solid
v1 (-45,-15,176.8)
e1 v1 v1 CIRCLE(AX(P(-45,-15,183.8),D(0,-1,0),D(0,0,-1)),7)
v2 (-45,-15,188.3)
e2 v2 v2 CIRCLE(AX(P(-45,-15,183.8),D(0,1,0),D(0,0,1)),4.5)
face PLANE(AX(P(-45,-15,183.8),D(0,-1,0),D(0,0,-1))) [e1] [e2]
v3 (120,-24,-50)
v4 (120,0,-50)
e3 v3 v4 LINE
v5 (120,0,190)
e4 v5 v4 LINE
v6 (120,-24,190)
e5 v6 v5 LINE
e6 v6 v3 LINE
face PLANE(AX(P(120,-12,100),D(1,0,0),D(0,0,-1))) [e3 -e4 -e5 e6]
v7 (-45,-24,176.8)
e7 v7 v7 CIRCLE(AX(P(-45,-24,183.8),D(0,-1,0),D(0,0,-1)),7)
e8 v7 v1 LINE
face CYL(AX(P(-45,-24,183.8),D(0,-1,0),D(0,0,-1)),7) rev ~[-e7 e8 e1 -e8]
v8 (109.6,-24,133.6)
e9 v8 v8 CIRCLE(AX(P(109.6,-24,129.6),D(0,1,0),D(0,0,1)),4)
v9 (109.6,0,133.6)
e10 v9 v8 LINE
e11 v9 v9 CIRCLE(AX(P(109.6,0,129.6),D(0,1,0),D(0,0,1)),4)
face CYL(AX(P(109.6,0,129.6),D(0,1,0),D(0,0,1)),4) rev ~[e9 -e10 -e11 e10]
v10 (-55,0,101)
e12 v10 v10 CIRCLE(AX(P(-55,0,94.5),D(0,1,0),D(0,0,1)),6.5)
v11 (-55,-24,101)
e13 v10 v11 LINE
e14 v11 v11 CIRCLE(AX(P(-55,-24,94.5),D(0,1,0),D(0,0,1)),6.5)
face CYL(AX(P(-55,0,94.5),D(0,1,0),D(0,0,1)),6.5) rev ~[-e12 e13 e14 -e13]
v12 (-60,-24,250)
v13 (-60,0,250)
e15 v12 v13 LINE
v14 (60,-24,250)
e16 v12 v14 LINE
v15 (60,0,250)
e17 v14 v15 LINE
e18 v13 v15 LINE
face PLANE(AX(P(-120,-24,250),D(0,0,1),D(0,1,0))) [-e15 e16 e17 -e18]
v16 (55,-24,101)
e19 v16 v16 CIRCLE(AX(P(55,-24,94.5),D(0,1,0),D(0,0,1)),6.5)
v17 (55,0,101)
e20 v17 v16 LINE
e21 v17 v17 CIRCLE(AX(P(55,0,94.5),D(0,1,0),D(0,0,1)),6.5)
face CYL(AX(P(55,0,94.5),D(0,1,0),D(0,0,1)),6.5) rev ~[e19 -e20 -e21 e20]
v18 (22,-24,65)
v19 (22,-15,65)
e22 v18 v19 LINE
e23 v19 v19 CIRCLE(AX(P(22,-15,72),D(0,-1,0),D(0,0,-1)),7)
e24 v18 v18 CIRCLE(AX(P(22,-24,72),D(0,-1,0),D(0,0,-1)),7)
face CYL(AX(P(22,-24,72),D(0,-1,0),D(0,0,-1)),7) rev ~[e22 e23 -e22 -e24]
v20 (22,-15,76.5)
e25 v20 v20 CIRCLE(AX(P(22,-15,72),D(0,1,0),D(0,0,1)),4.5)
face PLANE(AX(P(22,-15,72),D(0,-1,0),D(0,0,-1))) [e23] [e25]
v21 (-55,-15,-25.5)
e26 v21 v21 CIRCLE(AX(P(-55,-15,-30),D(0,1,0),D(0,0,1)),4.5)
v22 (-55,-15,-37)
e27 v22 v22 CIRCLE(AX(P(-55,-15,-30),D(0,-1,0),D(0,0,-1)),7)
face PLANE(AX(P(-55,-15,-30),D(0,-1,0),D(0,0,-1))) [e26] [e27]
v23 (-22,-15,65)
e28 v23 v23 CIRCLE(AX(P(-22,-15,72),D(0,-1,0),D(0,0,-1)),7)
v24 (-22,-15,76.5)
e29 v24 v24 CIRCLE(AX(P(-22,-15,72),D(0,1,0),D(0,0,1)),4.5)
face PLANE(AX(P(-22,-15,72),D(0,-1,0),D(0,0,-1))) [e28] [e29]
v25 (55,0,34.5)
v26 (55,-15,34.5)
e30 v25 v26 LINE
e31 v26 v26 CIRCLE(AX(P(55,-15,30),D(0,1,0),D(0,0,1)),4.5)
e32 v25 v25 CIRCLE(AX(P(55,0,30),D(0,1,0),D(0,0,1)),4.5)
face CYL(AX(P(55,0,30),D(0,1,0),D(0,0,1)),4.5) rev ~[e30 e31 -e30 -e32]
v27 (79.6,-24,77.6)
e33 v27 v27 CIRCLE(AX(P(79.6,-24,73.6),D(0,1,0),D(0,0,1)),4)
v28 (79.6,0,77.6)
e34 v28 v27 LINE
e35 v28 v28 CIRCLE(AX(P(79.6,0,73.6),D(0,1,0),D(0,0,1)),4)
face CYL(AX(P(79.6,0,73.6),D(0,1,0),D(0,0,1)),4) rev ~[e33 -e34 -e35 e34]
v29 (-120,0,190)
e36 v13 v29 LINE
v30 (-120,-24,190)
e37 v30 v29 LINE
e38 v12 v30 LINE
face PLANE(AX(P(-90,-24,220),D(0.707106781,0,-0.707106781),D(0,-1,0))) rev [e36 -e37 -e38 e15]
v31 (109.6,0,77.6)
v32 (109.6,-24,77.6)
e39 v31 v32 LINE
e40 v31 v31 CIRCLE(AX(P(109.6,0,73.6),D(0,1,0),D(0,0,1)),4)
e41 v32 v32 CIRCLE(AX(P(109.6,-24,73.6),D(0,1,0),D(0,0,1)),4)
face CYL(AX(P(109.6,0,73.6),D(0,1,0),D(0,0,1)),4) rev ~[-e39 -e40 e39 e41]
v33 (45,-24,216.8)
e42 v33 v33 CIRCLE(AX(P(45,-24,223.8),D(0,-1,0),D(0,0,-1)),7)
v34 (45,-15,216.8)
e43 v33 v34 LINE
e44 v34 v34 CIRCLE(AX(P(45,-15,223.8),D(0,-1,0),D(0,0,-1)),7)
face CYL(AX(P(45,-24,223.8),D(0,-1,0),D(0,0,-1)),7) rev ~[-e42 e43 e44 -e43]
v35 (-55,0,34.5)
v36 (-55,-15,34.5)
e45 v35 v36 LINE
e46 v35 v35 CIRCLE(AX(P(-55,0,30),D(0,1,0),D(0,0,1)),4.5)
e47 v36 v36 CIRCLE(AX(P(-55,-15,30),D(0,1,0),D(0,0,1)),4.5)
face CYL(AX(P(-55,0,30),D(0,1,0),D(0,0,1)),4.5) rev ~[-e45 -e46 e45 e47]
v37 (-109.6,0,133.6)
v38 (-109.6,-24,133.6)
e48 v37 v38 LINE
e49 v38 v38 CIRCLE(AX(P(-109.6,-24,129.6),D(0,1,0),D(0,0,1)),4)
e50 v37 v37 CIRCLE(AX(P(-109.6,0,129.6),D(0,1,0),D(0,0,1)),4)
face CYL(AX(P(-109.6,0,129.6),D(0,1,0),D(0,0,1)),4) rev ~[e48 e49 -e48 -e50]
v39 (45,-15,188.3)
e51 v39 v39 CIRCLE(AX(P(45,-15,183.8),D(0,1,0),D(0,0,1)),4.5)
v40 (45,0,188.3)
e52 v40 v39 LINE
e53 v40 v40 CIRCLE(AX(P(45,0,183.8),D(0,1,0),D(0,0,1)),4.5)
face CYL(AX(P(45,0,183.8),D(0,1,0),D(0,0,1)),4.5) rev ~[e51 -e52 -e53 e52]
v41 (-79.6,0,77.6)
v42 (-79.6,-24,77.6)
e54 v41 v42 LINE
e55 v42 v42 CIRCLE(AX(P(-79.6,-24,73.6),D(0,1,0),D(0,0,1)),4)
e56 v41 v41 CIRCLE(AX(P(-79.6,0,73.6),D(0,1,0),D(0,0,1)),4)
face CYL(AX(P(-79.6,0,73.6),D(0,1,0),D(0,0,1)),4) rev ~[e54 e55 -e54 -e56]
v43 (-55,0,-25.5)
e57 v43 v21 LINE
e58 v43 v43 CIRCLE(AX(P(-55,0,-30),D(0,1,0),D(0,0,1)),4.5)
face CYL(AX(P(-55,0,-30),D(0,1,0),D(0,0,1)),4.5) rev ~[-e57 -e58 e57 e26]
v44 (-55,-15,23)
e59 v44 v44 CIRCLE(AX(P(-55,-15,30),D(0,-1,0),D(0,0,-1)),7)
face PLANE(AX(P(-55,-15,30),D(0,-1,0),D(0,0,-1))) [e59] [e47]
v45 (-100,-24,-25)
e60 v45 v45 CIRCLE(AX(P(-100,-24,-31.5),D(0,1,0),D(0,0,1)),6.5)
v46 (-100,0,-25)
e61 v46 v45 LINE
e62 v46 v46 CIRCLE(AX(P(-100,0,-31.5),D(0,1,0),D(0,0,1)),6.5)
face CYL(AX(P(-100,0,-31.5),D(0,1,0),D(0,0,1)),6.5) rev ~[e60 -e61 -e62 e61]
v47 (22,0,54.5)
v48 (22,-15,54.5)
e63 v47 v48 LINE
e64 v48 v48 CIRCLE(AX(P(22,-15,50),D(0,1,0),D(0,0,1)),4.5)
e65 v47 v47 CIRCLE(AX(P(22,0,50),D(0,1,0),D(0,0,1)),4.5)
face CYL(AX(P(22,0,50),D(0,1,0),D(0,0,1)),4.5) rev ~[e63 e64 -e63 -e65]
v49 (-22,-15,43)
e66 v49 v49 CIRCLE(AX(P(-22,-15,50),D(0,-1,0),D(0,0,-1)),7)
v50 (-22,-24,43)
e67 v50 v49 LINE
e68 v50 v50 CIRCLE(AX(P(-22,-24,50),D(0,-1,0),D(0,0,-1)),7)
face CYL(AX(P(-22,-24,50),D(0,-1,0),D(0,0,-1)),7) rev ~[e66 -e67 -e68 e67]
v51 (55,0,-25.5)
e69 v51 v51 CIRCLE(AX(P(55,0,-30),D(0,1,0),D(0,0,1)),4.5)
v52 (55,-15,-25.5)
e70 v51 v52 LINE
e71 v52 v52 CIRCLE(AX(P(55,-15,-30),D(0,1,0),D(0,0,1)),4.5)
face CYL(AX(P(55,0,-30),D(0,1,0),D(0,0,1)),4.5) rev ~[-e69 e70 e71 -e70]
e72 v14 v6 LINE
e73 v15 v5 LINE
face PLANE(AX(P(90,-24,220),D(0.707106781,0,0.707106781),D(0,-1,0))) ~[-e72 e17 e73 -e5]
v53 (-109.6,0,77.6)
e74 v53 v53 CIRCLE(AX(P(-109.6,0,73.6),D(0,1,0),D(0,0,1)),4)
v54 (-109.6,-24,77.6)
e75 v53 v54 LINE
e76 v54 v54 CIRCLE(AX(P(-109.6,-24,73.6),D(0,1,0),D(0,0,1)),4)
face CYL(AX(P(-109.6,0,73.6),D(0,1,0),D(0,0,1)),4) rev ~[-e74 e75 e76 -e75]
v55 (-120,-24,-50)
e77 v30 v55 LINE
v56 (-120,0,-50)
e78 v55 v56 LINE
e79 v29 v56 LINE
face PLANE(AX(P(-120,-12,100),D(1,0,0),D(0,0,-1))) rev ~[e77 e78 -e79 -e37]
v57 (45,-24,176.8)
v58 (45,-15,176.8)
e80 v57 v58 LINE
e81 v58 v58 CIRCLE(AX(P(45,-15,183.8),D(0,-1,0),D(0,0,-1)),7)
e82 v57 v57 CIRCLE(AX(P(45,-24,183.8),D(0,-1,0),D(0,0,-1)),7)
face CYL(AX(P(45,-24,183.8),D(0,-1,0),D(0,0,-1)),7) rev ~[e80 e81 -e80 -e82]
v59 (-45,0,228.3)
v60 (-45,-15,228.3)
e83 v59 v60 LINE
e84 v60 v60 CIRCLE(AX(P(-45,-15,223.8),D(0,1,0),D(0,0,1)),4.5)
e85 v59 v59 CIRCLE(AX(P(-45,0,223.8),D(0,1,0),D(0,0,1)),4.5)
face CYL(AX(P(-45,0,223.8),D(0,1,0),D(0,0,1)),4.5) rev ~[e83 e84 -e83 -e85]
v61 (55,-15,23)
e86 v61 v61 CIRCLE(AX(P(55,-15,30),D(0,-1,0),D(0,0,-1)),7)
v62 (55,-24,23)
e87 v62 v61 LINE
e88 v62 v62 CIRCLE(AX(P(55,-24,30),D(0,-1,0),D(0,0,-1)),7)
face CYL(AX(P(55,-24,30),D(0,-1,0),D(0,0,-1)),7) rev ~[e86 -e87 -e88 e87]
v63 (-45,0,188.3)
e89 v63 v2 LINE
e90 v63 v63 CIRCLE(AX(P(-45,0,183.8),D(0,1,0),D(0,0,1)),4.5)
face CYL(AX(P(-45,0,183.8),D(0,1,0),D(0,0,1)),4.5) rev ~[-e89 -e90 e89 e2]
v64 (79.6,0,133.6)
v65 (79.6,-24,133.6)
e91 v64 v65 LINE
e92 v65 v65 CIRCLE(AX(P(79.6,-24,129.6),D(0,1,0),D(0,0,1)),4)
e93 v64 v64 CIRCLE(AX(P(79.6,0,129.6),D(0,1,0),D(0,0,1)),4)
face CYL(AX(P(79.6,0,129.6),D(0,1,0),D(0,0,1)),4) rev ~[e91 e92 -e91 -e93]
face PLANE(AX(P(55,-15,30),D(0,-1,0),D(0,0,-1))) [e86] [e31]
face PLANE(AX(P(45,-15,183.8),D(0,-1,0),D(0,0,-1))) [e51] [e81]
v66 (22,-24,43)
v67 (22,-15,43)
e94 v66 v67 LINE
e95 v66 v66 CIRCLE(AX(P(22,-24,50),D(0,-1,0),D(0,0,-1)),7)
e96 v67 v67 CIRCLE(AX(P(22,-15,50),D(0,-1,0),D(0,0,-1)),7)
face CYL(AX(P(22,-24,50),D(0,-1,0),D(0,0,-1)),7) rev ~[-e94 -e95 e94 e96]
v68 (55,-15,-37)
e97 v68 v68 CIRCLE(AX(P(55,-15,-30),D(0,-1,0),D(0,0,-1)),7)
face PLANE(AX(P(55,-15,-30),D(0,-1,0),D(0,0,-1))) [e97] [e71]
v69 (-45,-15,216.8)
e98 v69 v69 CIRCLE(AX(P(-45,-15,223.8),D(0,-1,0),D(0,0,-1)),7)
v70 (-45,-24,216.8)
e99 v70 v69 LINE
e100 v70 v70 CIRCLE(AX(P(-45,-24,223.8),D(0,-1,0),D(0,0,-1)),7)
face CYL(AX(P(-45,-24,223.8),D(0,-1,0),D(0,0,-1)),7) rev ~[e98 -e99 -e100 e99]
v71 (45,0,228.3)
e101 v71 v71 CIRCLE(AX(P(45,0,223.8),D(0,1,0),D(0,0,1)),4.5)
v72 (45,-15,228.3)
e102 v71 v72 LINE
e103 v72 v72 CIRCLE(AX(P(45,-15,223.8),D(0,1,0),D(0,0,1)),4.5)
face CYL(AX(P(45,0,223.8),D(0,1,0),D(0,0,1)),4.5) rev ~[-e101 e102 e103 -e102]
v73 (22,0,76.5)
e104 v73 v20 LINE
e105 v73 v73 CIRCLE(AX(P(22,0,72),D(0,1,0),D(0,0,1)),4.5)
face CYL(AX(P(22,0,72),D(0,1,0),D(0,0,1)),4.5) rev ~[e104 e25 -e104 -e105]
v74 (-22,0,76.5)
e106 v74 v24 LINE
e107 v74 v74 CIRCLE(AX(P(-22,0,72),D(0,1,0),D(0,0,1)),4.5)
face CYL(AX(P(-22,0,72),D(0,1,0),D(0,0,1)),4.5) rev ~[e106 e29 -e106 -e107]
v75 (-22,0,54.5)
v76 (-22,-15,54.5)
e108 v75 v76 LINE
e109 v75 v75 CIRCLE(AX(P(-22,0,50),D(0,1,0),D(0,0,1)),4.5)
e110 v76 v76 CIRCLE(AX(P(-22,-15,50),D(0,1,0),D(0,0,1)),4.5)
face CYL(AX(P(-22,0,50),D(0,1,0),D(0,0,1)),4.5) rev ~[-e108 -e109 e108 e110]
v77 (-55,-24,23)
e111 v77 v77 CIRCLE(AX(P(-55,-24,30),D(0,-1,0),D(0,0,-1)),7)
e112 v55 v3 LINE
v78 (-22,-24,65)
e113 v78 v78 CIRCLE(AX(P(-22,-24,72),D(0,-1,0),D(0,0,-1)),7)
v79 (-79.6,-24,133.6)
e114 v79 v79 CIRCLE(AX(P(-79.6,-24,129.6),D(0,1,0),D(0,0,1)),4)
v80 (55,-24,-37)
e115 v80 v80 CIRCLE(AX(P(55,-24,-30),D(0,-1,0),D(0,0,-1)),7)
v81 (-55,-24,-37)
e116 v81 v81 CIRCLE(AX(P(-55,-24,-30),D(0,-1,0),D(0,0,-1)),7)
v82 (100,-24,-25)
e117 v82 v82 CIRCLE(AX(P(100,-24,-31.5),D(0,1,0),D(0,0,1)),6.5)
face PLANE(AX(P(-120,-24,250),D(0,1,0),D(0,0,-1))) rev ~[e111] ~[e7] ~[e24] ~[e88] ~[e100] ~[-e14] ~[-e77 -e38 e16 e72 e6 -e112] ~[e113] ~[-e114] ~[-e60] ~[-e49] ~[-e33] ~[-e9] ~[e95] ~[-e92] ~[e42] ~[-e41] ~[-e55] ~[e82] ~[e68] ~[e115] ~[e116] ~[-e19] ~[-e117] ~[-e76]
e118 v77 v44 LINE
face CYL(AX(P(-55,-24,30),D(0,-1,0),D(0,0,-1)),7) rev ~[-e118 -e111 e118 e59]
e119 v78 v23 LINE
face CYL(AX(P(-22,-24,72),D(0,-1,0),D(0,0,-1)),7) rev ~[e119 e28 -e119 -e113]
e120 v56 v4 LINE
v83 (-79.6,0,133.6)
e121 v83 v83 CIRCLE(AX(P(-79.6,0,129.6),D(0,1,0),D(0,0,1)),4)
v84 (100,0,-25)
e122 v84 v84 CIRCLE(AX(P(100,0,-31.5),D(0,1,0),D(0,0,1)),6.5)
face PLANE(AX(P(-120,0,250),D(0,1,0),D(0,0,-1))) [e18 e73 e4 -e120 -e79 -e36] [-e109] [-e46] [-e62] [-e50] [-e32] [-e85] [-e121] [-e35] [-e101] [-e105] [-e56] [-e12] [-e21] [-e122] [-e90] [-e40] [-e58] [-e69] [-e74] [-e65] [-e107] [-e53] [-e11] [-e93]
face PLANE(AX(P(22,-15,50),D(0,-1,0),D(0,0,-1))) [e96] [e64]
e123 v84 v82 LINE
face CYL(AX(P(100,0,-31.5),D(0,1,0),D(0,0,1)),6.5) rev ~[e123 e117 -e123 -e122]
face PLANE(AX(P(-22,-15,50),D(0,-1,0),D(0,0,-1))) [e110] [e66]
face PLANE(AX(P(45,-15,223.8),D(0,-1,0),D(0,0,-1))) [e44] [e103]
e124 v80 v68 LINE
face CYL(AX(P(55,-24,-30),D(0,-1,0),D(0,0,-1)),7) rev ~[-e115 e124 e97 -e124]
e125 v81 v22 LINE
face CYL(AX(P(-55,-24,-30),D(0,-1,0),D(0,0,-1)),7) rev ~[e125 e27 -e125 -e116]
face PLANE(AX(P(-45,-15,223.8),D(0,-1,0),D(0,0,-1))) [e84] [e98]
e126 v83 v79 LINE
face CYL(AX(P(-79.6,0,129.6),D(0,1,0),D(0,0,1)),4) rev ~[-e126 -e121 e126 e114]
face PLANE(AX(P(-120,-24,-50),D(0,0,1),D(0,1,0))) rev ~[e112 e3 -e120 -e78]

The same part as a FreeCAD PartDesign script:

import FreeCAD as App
import Part
import Sketcher
from FreeCAD import Vector


def edges_at(feature, points):
    """Names of the edges that pass closest to the given points."""
    edges = feature.Shape.Edges
    near = lambda p: min(range(len(edges)), key=lambda i: edges[i].distToShape(Part.Vertex(*p))[0])
    return sorted({f"Edge{near(p) + 1}" for p in points})

doc = App.newDocument("Part")
body = doc.addObject("PartDesign::Body", "Body")

sketch1 = doc.addObject("Sketcher::SketchObject", "Sketch")
body.addObject(sketch1)
sketch1.AttachmentSupport = (doc.YZ_Plane, [""])
sketch1.MapMode = "FlatFace"
sketch1.addGeometry([
    Part.LineSegment(Vector(0, 250, 0), Vector(-24, 250, 0)),
    Part.LineSegment(Vector(-24, 250, 0), Vector(-24, -50, 0)),
    Part.LineSegment(Vector(-24, -50, 0), Vector(0, -50, 0)),
    Part.LineSegment(Vector(0, -50, 0), Vector(0, 250, 0)),
], False)
sketch1.addConstraint([
    Sketcher.Constraint("Coincident", 0, 2, 1, 1),
    Sketcher.Constraint("Coincident", 1, 2, 2, 1),
    Sketcher.Constraint("Coincident", 2, 2, 3, 1),
    Sketcher.Constraint("Coincident", 3, 2, 0, 1),
    Sketcher.Constraint("Horizontal", 0),
    Sketcher.Constraint("Vertical", 1),
    Sketcher.Constraint("Horizontal", 2),
    Sketcher.Constraint("Vertical", 3),
    Sketcher.Constraint("PointOnObject", 2, 2, -2),
    Sketcher.Constraint("DistanceX", 0, 2, 0, 1, 24.0),
    Sketcher.Constraint("DistanceY", 1, 2, 1, 1, 300.0),
    Sketcher.Constraint("DistanceY", -1, 1, 0, 2, 250.0),
])
pad1 = doc.addObject("PartDesign::Pad", "Pad")
body.addObject(pad1)
pad1.Profile = sketch1
pad1.Type = "TwoLengths"
pad1.Length = 120
pad1.Length2 = 120

sketch2 = doc.addObject("Sketcher::SketchObject", "Sketch001")
body.addObject(sketch2)
sketch2.AttachmentSupport = (doc.XZ_Plane, [""])
sketch2.MapMode = "FlatFace"
sketch2.addGeometry(Part.Circle(Vector(45, 183.8, 0), Vector(0, 0, 1), 4.5), False)
sketch2.addConstraint([
    Sketcher.Constraint("Diameter", 0, 9.0),
    Sketcher.Constraint("DistanceX", -1, 1, 0, 3, 45.0),
    Sketcher.Constraint("DistanceY", -1, 1, 0, 3, 183.8),
])
pocket1 = doc.addObject("PartDesign::Pocket", "Pocket")
body.addObject(pocket1)
pocket1.Profile = sketch2
pocket1.Type = "UpToFirst"
pocket1.Reversed = True

sketch3 = doc.addObject("Sketcher::SketchObject", "Sketch002")
body.addObject(sketch3)
sketch3.AttachmentSupport = (doc.XZ_Plane, [""])
sketch3.MapMode = "FlatFace"
sketch3.addGeometry(Part.Circle(Vector(45, 223.8, 0), Vector(0, 0, 1), 4.5), False)
sketch3.addConstraint([
    Sketcher.Constraint("Diameter", 0, 9.0),
    Sketcher.Constraint("DistanceX", -1, 1, 0, 3, 45.0),
    Sketcher.Constraint("DistanceY", -1, 1, 0, 3, 223.8),
])
pocket2 = doc.addObject("PartDesign::Pocket", "Pocket001")
body.addObject(pocket2)
pocket2.Profile = sketch3
pocket2.Type = "UpToFirst"
pocket2.Reversed = True

sketch4 = doc.addObject("Sketcher::SketchObject", "Sketch003")
body.addObject(sketch4)
sketch4.AttachmentSupport = (doc.XZ_Plane, [""])
sketch4.MapMode = "FlatFace"
sketch4.addGeometry(Part.Circle(Vector(-45, 183.8, 0), Vector(0, 0, 1), 4.5), False)
sketch4.addConstraint([
    Sketcher.Constraint("Diameter", 0, 9.0),
    Sketcher.Constraint("DistanceX", 0, 3, -1, 1, 45.0),
    Sketcher.Constraint("DistanceY", -1, 1, 0, 3, 183.8),
])
pocket3 = doc.addObject("PartDesign::Pocket", "Pocket002")
body.addObject(pocket3)
pocket3.Profile = sketch4
pocket3.Type = "UpToFirst"
pocket3.Reversed = True

sketch5 = doc.addObject("Sketcher::SketchObject", "Sketch004")
body.addObject(sketch5)
sketch5.AttachmentSupport = (doc.XZ_Plane, [""])
sketch5.MapMode = "FlatFace"
sketch5.addGeometry(Part.Circle(Vector(-45, 223.8, 0), Vector(0, 0, 1), 4.5), False)
sketch5.addConstraint([
    Sketcher.Constraint("Diameter", 0, 9.0),
    Sketcher.Constraint("DistanceX", 0, 3, -1, 1, 45.0),
    Sketcher.Constraint("DistanceY", -1, 1, 0, 3, 223.8),
])
pocket4 = doc.addObject("PartDesign::Pocket", "Pocket003")
body.addObject(pocket4)
pocket4.Profile = sketch5
pocket4.Type = "UpToFirst"
pocket4.Reversed = True

sketch6 = doc.addObject("Sketcher::SketchObject", "Sketch005")
body.addObject(sketch6)
sketch6.AttachmentSupport = (doc.XZ_Plane, [""])
sketch6.MapMode = "FlatFace"
sketch6.AttachmentOffset = App.Placement(Vector(0, 0, 24), App.Rotation())
sketch6.addGeometry([
    Part.Circle(Vector(-45, 224, 0), Vector(0, 0, 1), 7),
    Part.Circle(Vector(-45, 184, 0), Vector(0, 0, 1), 7),
    Part.Circle(Vector(45, 224, 0), Vector(0, 0, 1), 7),
    Part.Circle(Vector(45, 184, 0), Vector(0, 0, 1), 7),
], False)
sketch6.addConstraint([
    Sketcher.Constraint("Equal", 0, 1),
    Sketcher.Constraint("Equal", 1, 2),
    Sketcher.Constraint("Equal", 2, 3),
    Sketcher.Constraint("Symmetric", 0, 3, 2, 3, -2),
    Sketcher.Constraint("Symmetric", 1, 3, 3, 3, -2),
    Sketcher.Constraint("Vertical", 0, 3, 1, 3),
    Sketcher.Constraint("Diameter", 0, 14.0),
    Sketcher.Constraint("DistanceX", 0, 3, -1, 1, 45.0),
    Sketcher.Constraint("DistanceY", 1, 3, 0, 3, 40.0),
    Sketcher.Constraint("DistanceY", -1, 1, 0, 3, 223.8),
])
pocket5 = doc.addObject("PartDesign::Pocket", "Pocket004")
body.addObject(pocket5)
pocket5.Profile = sketch6
pocket5.Length = 9
doc.recompute()

chamfer = doc.addObject("PartDesign::Chamfer", "Chamfer")
body.addObject(chamfer)
chamfer.Base = (pocket5, edges_at(pocket5, [(-120, -12, 250), (120, -12, 250)]))
chamfer.Size = 60

sketch7 = doc.addObject("Sketcher::SketchObject", "Sketch006")
body.addObject(sketch7)
sketch7.AttachmentSupport = (doc.XZ_Plane, [""])
sketch7.MapMode = "FlatFace"
sketch7.addGeometry(Part.Circle(Vector(100, -32, 0), Vector(0, 0, 1), 6), False)
sketch7.addConstraint([
    Sketcher.Constraint("Diameter", 0, 13.0),
    Sketcher.Constraint("DistanceX", -1, 1, 0, 3, 100.0),
    Sketcher.Constraint("DistanceY", 0, 3, -1, 1, 31.5),
])
pocket6 = doc.addObject("PartDesign::Pocket", "Pocket005")
body.addObject(pocket6)
pocket6.Profile = sketch7
pocket6.Type = "UpToFirst"
pocket6.Reversed = True

sketch8 = doc.addObject("Sketcher::SketchObject", "Sketch007")
body.addObject(sketch8)
sketch8.AttachmentSupport = (doc.XZ_Plane, [""])
sketch8.MapMode = "FlatFace"
sketch8.addGeometry(Part.Circle(Vector(-100, -32, 0), Vector(0, 0, 1), 6), False)
sketch8.addConstraint([
    Sketcher.Constraint("Diameter", 0, 13.0),
    Sketcher.Constraint("DistanceX", 0, 3, -1, 1, 100.0),
    Sketcher.Constraint("DistanceY", 0, 3, -1, 1, 31.5),
])
pocket7 = doc.addObject("PartDesign::Pocket", "Pocket006")
body.addObject(pocket7)
pocket7.Profile = sketch8
pocket7.Type = "UpToFirst"
pocket7.Reversed = True

sketch9 = doc.addObject("Sketcher::SketchObject", "Sketch008")
body.addObject(sketch9)
sketch9.AttachmentSupport = (doc.XZ_Plane, [""])
sketch9.MapMode = "FlatFace"
sketch9.addGeometry(Part.Circle(Vector(55, 94, 0), Vector(0, 0, 1), 6), False)
sketch9.addConstraint([
    Sketcher.Constraint("Diameter", 0, 13.0),
    Sketcher.Constraint("DistanceX", -1, 1, 0, 3, 55.0),
    Sketcher.Constraint("DistanceY", -1, 1, 0, 3, 94.5),
])
pocket8 = doc.addObject("PartDesign::Pocket", "Pocket007")
body.addObject(pocket8)
pocket8.Profile = sketch9
pocket8.Type = "UpToFirst"
pocket8.Reversed = True

sketch10 = doc.addObject("Sketcher::SketchObject", "Sketch009")
body.addObject(sketch10)
sketch10.AttachmentSupport = (doc.XZ_Plane, [""])
sketch10.MapMode = "FlatFace"
sketch10.addGeometry(Part.Circle(Vector(-55, 94, 0), Vector(0, 0, 1), 6), False)
sketch10.addConstraint([
    Sketcher.Constraint("Diameter", 0, 13.0),
    Sketcher.Constraint("DistanceX", 0, 3, -1, 1, 55.0),
    Sketcher.Constraint("DistanceY", -1, 1, 0, 3, 94.5),
])
pocket9 = doc.addObject("PartDesign::Pocket", "Pocket008")
body.addObject(pocket9)
pocket9.Profile = sketch10
pocket9.Type = "UpToFirst"
pocket9.Reversed = True

sketch11 = doc.addObject("Sketcher::SketchObject", "Sketch010")
body.addObject(sketch11)
sketch11.AttachmentSupport = (doc.XZ_Plane, [""])
sketch11.MapMode = "FlatFace"
sketch11.addGeometry(Part.Circle(Vector(79.6, 129.6, 0), Vector(0, 0, 1), 4), False)
sketch11.addConstraint([
    Sketcher.Constraint("Diameter", 0, 8.0),
    Sketcher.Constraint("DistanceX", -1, 1, 0, 3, 79.6),
    Sketcher.Constraint("DistanceY", -1, 1, 0, 3, 129.6),
])
pocket10 = doc.addObject("PartDesign::Pocket", "Pocket009")
body.addObject(pocket10)
pocket10.Profile = sketch11
pocket10.Type = "UpToFirst"
pocket10.Reversed = True

sketch12 = doc.addObject("Sketcher::SketchObject", "Sketch011")
body.addObject(sketch12)
sketch12.AttachmentSupport = (doc.XZ_Plane, [""])
sketch12.MapMode = "FlatFace"
sketch12.addGeometry(Part.Circle(Vector(109.6, 129.6, 0), Vector(0, 0, 1), 4), False)
sketch12.addConstraint([
    Sketcher.Constraint("Diameter", 0, 8.0),
    Sketcher.Constraint("DistanceX", -1, 1, 0, 3, 109.6),
    Sketcher.Constraint("DistanceY", -1, 1, 0, 3, 129.6),
])
pocket11 = doc.addObject("PartDesign::Pocket", "Pocket010")
body.addObject(pocket11)
pocket11.Profile = sketch12
pocket11.Type = "UpToFirst"
pocket11.Reversed = True

sketch13 = doc.addObject("Sketcher::SketchObject", "Sketch012")
body.addObject(sketch13)
sketch13.AttachmentSupport = (doc.XZ_Plane, [""])
sketch13.MapMode = "FlatFace"
sketch13.addGeometry(Part.Circle(Vector(109.6, 73.6, 0), Vector(0, 0, 1), 4), False)
sketch13.addConstraint([
    Sketcher.Constraint("Diameter", 0, 8.0),
    Sketcher.Constraint("DistanceX", -1, 1, 0, 3, 109.6),
    Sketcher.Constraint("DistanceY", -1, 1, 0, 3, 73.6),
])
pocket12 = doc.addObject("PartDesign::Pocket", "Pocket011")
body.addObject(pocket12)
pocket12.Profile = sketch13
pocket12.Type = "UpToFirst"
pocket12.Reversed = True

sketch14 = doc.addObject("Sketcher::SketchObject", "Sketch013")
body.addObject(sketch14)
sketch14.AttachmentSupport = (doc.XZ_Plane, [""])
sketch14.MapMode = "FlatFace"
sketch14.addGeometry(Part.Circle(Vector(79.6, 73.6, 0), Vector(0, 0, 1), 4), False)
sketch14.addConstraint([
    Sketcher.Constraint("Diameter", 0, 8.0),
    Sketcher.Constraint("DistanceX", -1, 1, 0, 3, 79.6),
    Sketcher.Constraint("DistanceY", -1, 1, 0, 3, 73.6),
])
pocket13 = doc.addObject("PartDesign::Pocket", "Pocket012")
body.addObject(pocket13)
pocket13.Profile = sketch14
pocket13.Type = "UpToFirst"
pocket13.Reversed = True

sketch15 = doc.addObject("Sketcher::SketchObject", "Sketch014")
body.addObject(sketch15)
sketch15.AttachmentSupport = (doc.XZ_Plane, [""])
sketch15.MapMode = "FlatFace"
sketch15.addGeometry(Part.Circle(Vector(-109.6, 129.6, 0), Vector(0, 0, 1), 4), False)
sketch15.addConstraint([
    Sketcher.Constraint("Diameter", 0, 8.0),
    Sketcher.Constraint("DistanceX", 0, 3, -1, 1, 109.6),
    Sketcher.Constraint("DistanceY", -1, 1, 0, 3, 129.6),
])
pocket14 = doc.addObject("PartDesign::Pocket", "Pocket013")
body.addObject(pocket14)
pocket14.Profile = sketch15
pocket14.Type = "UpToFirst"
pocket14.Reversed = True

sketch16 = doc.addObject("Sketcher::SketchObject", "Sketch015")
body.addObject(sketch16)
sketch16.AttachmentSupport = (doc.XZ_Plane, [""])
sketch16.MapMode = "FlatFace"
sketch16.addGeometry(Part.Circle(Vector(-79.6, 129.6, 0), Vector(0, 0, 1), 4), False)
sketch16.addConstraint([
    Sketcher.Constraint("Diameter", 0, 8.0),
    Sketcher.Constraint("DistanceX", 0, 3, -1, 1, 79.6),
    Sketcher.Constraint("DistanceY", -1, 1, 0, 3, 129.6),
])
pocket15 = doc.addObject("PartDesign::Pocket", "Pocket014")
body.addObject(pocket15)
pocket15.Profile = sketch16
pocket15.Type = "UpToFirst"
pocket15.Reversed = True

sketch17 = doc.addObject("Sketcher::SketchObject", "Sketch016")
body.addObject(sketch17)
sketch17.AttachmentSupport = (doc.XZ_Plane, [""])
sketch17.MapMode = "FlatFace"
sketch17.addGeometry(Part.Circle(Vector(-109.6, 73.6, 0), Vector(0, 0, 1), 4), False)
sketch17.addConstraint([
    Sketcher.Constraint("Diameter", 0, 8.0),
    Sketcher.Constraint("DistanceX", 0, 3, -1, 1, 109.6),
    Sketcher.Constraint("DistanceY", -1, 1, 0, 3, 73.6),
])
pocket16 = doc.addObject("PartDesign::Pocket", "Pocket015")
body.addObject(pocket16)
pocket16.Profile = sketch17
pocket16.Type = "UpToFirst"
pocket16.Reversed = True

sketch18 = doc.addObject("Sketcher::SketchObject", "Sketch017")
body.addObject(sketch18)
sketch18.AttachmentSupport = (doc.XZ_Plane, [""])
sketch18.MapMode = "FlatFace"
sketch18.addGeometry(Part.Circle(Vector(-79.6, 73.6, 0), Vector(0, 0, 1), 4), False)
sketch18.addConstraint([
    Sketcher.Constraint("Diameter", 0, 8.0),
    Sketcher.Constraint("DistanceX", 0, 3, -1, 1, 79.6),
    Sketcher.Constraint("DistanceY", -1, 1, 0, 3, 73.6),
])
pocket17 = doc.addObject("PartDesign::Pocket", "Pocket016")
body.addObject(pocket17)
pocket17.Profile = sketch18
pocket17.Type = "UpToFirst"
pocket17.Reversed = True

sketch19 = doc.addObject("Sketcher::SketchObject", "Sketch018")
body.addObject(sketch19)
sketch19.AttachmentSupport = (doc.XZ_Plane, [""])
sketch19.MapMode = "FlatFace"
sketch19.addGeometry([
    Part.Circle(Vector(-55, 30, 0), Vector(0, 0, 1), 4.5),
    Part.Circle(Vector(-55, -30, 0), Vector(0, 0, 1), 4.5),
    Part.Circle(Vector(55, -30, 0), Vector(0, 0, 1), 4.5),
    Part.Circle(Vector(55, 30, 0), Vector(0, 0, 1), 4.5),
], False)
sketch19.addConstraint([
    Sketcher.Constraint("Equal", 0, 1),
    Sketcher.Constraint("Equal", 1, 2),
    Sketcher.Constraint("Equal", 2, 3),
    Sketcher.Constraint("Symmetric", 0, 3, 2, 3, -1, 1),
    Sketcher.Constraint("Symmetric", 1, 3, 3, 3, -1, 1),
    Sketcher.Constraint("Symmetric", 1, 3, 2, 3, -2),
    Sketcher.Constraint("Diameter", 0, 9.0),
    Sketcher.Constraint("DistanceX", 0, 3, -1, 1, 55.0),
    Sketcher.Constraint("DistanceY", -1, 1, 0, 3, 30.0),
])
pocket18 = doc.addObject("PartDesign::Pocket", "Pocket017")
body.addObject(pocket18)
pocket18.Profile = sketch19
pocket18.Length = 30
pocket18.Reversed = True

sketch20 = doc.addObject("Sketcher::SketchObject", "Sketch019")
body.addObject(sketch20)
sketch20.AttachmentSupport = (doc.XZ_Plane, [""])
sketch20.MapMode = "FlatFace"
sketch20.AttachmentOffset = App.Placement(Vector(0, 0, 24), App.Rotation())
sketch20.addGeometry([
    Part.Circle(Vector(55, 30, 0), Vector(0, 0, 1), 7),
    Part.Circle(Vector(55, -30, 0), Vector(0, 0, 1), 7),
    Part.Circle(Vector(-55, 30, 0), Vector(0, 0, 1), 7),
    Part.Circle(Vector(-55, -30, 0), Vector(0, 0, 1), 7),
], False)
sketch20.addConstraint([
    Sketcher.Constraint("Equal", 0, 1),
    Sketcher.Constraint("Equal", 1, 2),
    Sketcher.Constraint("Equal", 2, 3),
    Sketcher.Constraint("Symmetric", 1, 3, 2, 3, -1, 1),
    Sketcher.Constraint("Symmetric", 0, 3, 3, 3, -1, 1),
    Sketcher.Constraint("Symmetric", 0, 3, 2, 3, -2),
    Sketcher.Constraint("Diameter", 0, 14.0),
    Sketcher.Constraint("DistanceX", -1, 1, 0, 3, 55.0),
    Sketcher.Constraint("DistanceY", -1, 1, 0, 3, 30.0),
])
pocket19 = doc.addObject("PartDesign::Pocket", "Pocket018")
body.addObject(pocket19)
pocket19.Profile = sketch20
pocket19.Length = 9

sketch21 = doc.addObject("Sketcher::SketchObject", "Sketch020")
body.addObject(sketch21)
sketch21.AttachmentSupport = (doc.XZ_Plane, [""])
sketch21.MapMode = "FlatFace"
sketch21.addGeometry(Part.Circle(Vector(-22, 50, 0), Vector(0, 0, 1), 4.5), False)
sketch21.addConstraint([
    Sketcher.Constraint("Diameter", 0, 9.0),
    Sketcher.Constraint("DistanceX", 0, 3, -1, 1, 22.0),
    Sketcher.Constraint("DistanceY", -1, 1, 0, 3, 50.0),
])
pocket20 = doc.addObject("PartDesign::Pocket", "Pocket019")
body.addObject(pocket20)
pocket20.Profile = sketch21
pocket20.Type = "UpToFirst"
pocket20.Reversed = True

sketch22 = doc.addObject("Sketcher::SketchObject", "Sketch021")
body.addObject(sketch22)
sketch22.AttachmentSupport = (doc.XZ_Plane, [""])
sketch22.MapMode = "FlatFace"
sketch22.addGeometry(Part.Circle(Vector(-22, 72, 0), Vector(0, 0, 1), 4.5), False)
sketch22.addConstraint([
    Sketcher.Constraint("Diameter", 0, 9.0),
    Sketcher.Constraint("DistanceX", 0, 3, -1, 1, 22.0),
    Sketcher.Constraint("DistanceY", -1, 1, 0, 3, 72.0),
])
pocket21 = doc.addObject("PartDesign::Pocket", "Pocket020")
body.addObject(pocket21)
pocket21.Profile = sketch22
pocket21.Type = "UpToFirst"
pocket21.Reversed = True

sketch23 = doc.addObject("Sketcher::SketchObject", "Sketch022")
body.addObject(sketch23)
sketch23.AttachmentSupport = (doc.XZ_Plane, [""])
sketch23.MapMode = "FlatFace"
sketch23.addGeometry(Part.Circle(Vector(22, 72, 0), Vector(0, 0, 1), 4.5), False)
sketch23.addConstraint([
    Sketcher.Constraint("Diameter", 0, 9.0),
    Sketcher.Constraint("DistanceX", -1, 1, 0, 3, 22.0),
    Sketcher.Constraint("DistanceY", -1, 1, 0, 3, 72.0),
])
pocket22 = doc.addObject("PartDesign::Pocket", "Pocket021")
body.addObject(pocket22)
pocket22.Profile = sketch23
pocket22.Type = "UpToFirst"
pocket22.Reversed = True

sketch24 = doc.addObject("Sketcher::SketchObject", "Sketch023")
body.addObject(sketch24)
sketch24.AttachmentSupport = (doc.XZ_Plane, [""])
sketch24.MapMode = "FlatFace"
sketch24.addGeometry(Part.Circle(Vector(22, 50, 0), Vector(0, 0, 1), 4.5), False)
sketch24.addConstraint([
    Sketcher.Constraint("Diameter", 0, 9.0),
    Sketcher.Constraint("DistanceX", -1, 1, 0, 3, 22.0),
    Sketcher.Constraint("DistanceY", -1, 1, 0, 3, 50.0),
])
pocket23 = doc.addObject("PartDesign::Pocket", "Pocket022")
body.addObject(pocket23)
pocket23.Profile = sketch24
pocket23.Type = "UpToFirst"
pocket23.Reversed = True

sketch25 = doc.addObject("Sketcher::SketchObject", "Sketch024")
body.addObject(sketch25)
sketch25.AttachmentSupport = (doc.XZ_Plane, [""])
sketch25.MapMode = "FlatFace"
sketch25.AttachmentOffset = App.Placement(Vector(0, 0, 24), App.Rotation())
sketch25.addGeometry([
    Part.Circle(Vector(22, 50, 0), Vector(0, 0, 1), 7),
    Part.Circle(Vector(22, 72, 0), Vector(0, 0, 1), 7),
    Part.Circle(Vector(-22, 72, 0), Vector(0, 0, 1), 7),
    Part.Circle(Vector(-22, 50, 0), Vector(0, 0, 1), 7),
], False)
sketch25.addConstraint([
    Sketcher.Constraint("Equal", 0, 1),
    Sketcher.Constraint("Equal", 1, 2),
    Sketcher.Constraint("Equal", 2, 3),
    Sketcher.Constraint("Symmetric", 1, 3, 2, 3, -2),
    Sketcher.Constraint("Symmetric", 0, 3, 3, 3, -2),
    Sketcher.Constraint("Vertical", 0, 3, 1, 3),
    Sketcher.Constraint("Diameter", 0, 14.0),
    Sketcher.Constraint("DistanceX", -1, 1, 0, 3, 22.0),
    Sketcher.Constraint("DistanceY", -1, 1, 0, 3, 50.0),
    Sketcher.Constraint("DistanceY", -1, 1, 1, 3, 72.0),
])
pocket24 = doc.addObject("PartDesign::Pocket", "Pocket023")
body.addObject(pocket24)
pocket24.Profile = sketch25
pocket24.Length = 9

doc.recompute()
